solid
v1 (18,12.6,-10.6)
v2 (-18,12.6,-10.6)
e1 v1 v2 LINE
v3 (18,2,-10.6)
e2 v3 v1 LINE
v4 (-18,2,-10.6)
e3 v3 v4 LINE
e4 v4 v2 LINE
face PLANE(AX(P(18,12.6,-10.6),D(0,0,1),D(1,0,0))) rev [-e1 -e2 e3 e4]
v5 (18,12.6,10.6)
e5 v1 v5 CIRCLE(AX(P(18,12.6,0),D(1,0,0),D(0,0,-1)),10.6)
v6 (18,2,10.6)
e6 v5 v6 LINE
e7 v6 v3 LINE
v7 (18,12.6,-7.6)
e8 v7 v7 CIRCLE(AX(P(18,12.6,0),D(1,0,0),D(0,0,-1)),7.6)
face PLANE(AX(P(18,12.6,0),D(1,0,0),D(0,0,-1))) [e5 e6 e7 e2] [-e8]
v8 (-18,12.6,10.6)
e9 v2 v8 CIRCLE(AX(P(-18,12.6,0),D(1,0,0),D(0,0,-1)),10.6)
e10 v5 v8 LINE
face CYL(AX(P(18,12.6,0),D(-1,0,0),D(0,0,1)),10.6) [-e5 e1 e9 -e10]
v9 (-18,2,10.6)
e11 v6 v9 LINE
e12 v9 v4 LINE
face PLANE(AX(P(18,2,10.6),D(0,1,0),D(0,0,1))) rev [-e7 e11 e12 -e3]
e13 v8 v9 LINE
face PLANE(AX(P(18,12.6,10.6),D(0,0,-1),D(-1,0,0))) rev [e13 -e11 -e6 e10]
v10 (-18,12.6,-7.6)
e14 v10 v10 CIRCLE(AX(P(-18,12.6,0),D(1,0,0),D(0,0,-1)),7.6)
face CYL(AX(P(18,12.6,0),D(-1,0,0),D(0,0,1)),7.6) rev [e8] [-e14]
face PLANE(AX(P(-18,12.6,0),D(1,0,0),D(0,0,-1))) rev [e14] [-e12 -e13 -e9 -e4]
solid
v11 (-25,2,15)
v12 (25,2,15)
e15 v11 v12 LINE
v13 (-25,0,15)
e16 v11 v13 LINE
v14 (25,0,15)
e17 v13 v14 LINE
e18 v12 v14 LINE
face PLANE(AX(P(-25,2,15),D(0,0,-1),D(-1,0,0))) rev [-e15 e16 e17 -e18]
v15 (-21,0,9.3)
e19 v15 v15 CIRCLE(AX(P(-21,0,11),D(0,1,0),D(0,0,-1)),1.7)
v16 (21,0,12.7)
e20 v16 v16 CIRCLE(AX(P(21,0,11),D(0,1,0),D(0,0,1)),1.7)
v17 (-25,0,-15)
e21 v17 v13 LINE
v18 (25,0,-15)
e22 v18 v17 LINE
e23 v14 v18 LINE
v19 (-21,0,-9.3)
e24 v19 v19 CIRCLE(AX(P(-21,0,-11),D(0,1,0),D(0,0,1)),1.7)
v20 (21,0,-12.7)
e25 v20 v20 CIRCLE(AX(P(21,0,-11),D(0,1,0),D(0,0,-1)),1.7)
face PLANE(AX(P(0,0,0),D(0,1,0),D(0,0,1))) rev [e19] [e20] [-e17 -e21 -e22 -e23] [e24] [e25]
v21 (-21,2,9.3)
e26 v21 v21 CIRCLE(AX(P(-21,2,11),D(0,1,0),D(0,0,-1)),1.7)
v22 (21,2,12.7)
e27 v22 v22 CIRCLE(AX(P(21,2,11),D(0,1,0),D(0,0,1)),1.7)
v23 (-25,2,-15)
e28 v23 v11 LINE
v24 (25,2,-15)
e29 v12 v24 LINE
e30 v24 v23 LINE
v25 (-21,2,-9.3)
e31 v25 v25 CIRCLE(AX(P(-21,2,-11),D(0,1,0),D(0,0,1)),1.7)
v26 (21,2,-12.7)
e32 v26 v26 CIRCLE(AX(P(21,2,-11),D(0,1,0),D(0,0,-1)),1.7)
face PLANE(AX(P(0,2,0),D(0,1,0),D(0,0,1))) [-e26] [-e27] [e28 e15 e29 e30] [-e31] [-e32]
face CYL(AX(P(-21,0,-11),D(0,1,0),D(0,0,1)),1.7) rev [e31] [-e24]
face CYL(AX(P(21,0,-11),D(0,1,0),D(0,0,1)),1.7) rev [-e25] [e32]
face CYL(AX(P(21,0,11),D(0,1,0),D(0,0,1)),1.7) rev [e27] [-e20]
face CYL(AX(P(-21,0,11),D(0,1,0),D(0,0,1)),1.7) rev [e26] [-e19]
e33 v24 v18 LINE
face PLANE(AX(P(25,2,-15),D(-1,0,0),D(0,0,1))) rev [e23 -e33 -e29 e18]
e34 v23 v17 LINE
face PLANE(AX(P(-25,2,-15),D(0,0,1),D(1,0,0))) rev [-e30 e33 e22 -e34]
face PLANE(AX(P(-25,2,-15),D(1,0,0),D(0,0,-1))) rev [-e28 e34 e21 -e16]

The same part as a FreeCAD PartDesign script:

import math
import FreeCAD as App
import Part
import Sketcher
from FreeCAD import Vector
Q = App.Units.Quantity

doc = App.newDocument("Part")
params = doc.addObject("Spreadsheet::Sheet", "Params")
for row, (alias, value) in enumerate([
    ("sketch1_width", "50 mm"),
    ("sketch1_height", "30 mm"),
    ("pad1_length", "2 mm"),
    ("sketch2_diameter", "3.4 mm"),
    ("sketch3_diameter", "15.2 mm"),
    ("sketch3_radius", "10.6 mm"),
    ("sketch3_width", "10.6 mm"),
    ("pad2_length", "36 mm"),
], start=1):
    params.set(f"A{row}", alias)
    params.set(f"B{row}", "=" + value)
    params.setAlias(f"B{row}", alias)

body = doc.addObject("PartDesign::Body", "Body")

# Sketch on XZ plane
sketch1 = body.newObject("Sketcher::SketchObject", "Sketch")
sketch1.AttachmentSupport = (doc.getObject("XZ_Plane"), [""])
sketch1.MapMode = "FlatFace"
sketch1.addGeometry([
    Part.LineSegment(Vector(-25, -15, 0), Vector(-25, 15, 0)),
    Part.LineSegment(Vector(-25, 15, 0), Vector(25, 15, 0)),
    Part.LineSegment(Vector(25, 15, 0), Vector(25, -15, 0)),
    Part.LineSegment(Vector(25, -15, 0), Vector(-25, -15, 0)),
], False)
sketch1.addConstraint([
    Sketcher.Constraint("Coincident", 0, 2, 1, 1),
    Sketcher.Constraint("Coincident", 1, 2, 2, 1),
    Sketcher.Constraint("Coincident", 2, 2, 3, 1),
    Sketcher.Constraint("Coincident", 3, 2, 0, 1),
    Sketcher.Constraint("Vertical", 0),
    Sketcher.Constraint("Horizontal", 1),
    Sketcher.Constraint("Vertical", 2),
    Sketcher.Constraint("Horizontal", 3),
    Sketcher.Constraint("Symmetric", 0, 2, 2, 2, -1, 1),
    Sketcher.Constraint("DistanceX", 1, 1, 1, 2, Q("50 mm")),
    Sketcher.Constraint("DistanceY", 0, 1, 0, 2, Q("30 mm")),
])
sketch1.setExpression("Constraints[9]", "Params.sketch1_width")
sketch1.setExpression("Constraints[10]", "Params.sketch1_height")
pad1 = body.newObject("PartDesign::Pad", "Pad")
pad1.Profile = sketch1
pad1.setExpression("Length", "Params.pad1_length")
pad1.Reversed = True

# Sketch on XZ plane
sketch2 = body.newObject("Sketcher::SketchObject", "Sketch001")
sketch2.AttachmentSupport = (doc.getObject("XZ_Plane"), [""])
sketch2.MapMode = "FlatFace"
sketch2.AttachmentOffset = App.Placement(Vector(0, 0, -2), App.Rotation())
sketch2.addGeometry([
    Part.Circle(Vector(-21, -11, 0), Vector(0, 0, 1), 1.7),
    Part.Circle(Vector(21, -11, 0), Vector(0, 0, 1), 1.7),
    Part.Circle(Vector(-21, 11, 0), Vector(0, 0, 1), 1.7),
    Part.Circle(Vector(21, 11, 0), Vector(0, 0, 1), 1.7),
], False)
sketch2.addConstraint([
    Sketcher.Constraint("Equal", 0, 1),
    Sketcher.Constraint("Equal", 1, 2),
    Sketcher.Constraint("Equal", 2, 3),
    Sketcher.Constraint("Symmetric", 1, 3, 2, 3, -1, 1),
    Sketcher.Constraint("Symmetric", 0, 3, 3, 3, -1, 1),
    Sketcher.Constraint("Symmetric", 0, 3, 1, 3, -2),
    Sketcher.Constraint("Diameter", 0, Q("3.4 mm")),
    Sketcher.Constraint("DistanceX", 0, 3, -1, 1, Q("21 mm")),
    Sketcher.Constraint("DistanceY", 0, 3, -1, 1, Q("11 mm")),
])
sketch2.setExpression("Constraints[6]", "Params.sketch2_diameter")
pocket1 = body.newObject("PartDesign::Pocket", "Pocket")
pocket1.Profile = sketch2
pocket1.Type = "ThroughAll"
pocket1.Reversed = True
body2 = doc.addObject("PartDesign::Body", "Body001")

# Sketch on YZ plane
sketch3 = body2.newObject("Sketcher::SketchObject", "Sketch002")
sketch3.AttachmentSupport = (doc.getObject("YZ_Plane001"), [""])
sketch3.MapMode = "FlatFace"
sketch3.addGeometry([
    Part.LineSegment(Vector(12.6, 10.6, 0), Vector(2, 10.6, 0)),  # 0
    Part.LineSegment(Vector(2, 10.6, 0), Vector(2, -10.6, 0)),  # 1
    Part.LineSegment(Vector(2, -10.6, 0), Vector(12.6, -10.6, 0)),  # 2
    Part.ArcOfCircle(Part.Circle(Vector(12.6, 0, 0), Vector(0, 0, 1), 10.6), math.radians(-90), math.radians(90)),  # 3
    Part.Circle(Vector(12.6, 0, 0), Vector(0, 0, 1), 7.6),  # 4
], False)
sketch3.addConstraint([
    Sketcher.Constraint("Coincident", 0, 2, 1, 1),
    Sketcher.Constraint("Coincident", 1, 2, 2, 1),
    Sketcher.Constraint("Tangent", 2, 2, 3, 1),
    Sketcher.Constraint("Tangent", 3, 2, 0, 1),
    Sketcher.Constraint("Horizontal", 0),
    Sketcher.Constraint("Vertical", 1),
    Sketcher.Constraint("Horizontal", 2),
    Sketcher.Constraint("Coincident", 4, 3, 3, 3),
    Sketcher.Constraint("PointOnObject", 3, 3, -1),
    Sketcher.Constraint("Diameter", 4, Q("15.2 mm")),
    Sketcher.Constraint("Radius", 3, Q("10.6 mm")),
    Sketcher.Constraint("DistanceX", 0, 2, 0, 1, Q("10.6 mm")),
    Sketcher.Constraint("DistanceX", -1, 1, 0, 2, Q("2 mm")),
])
sketch3.setExpression("Constraints[9]", "Params.sketch3_diameter")
sketch3.setExpression("Constraints[10]", "Params.sketch3_radius")
sketch3.setExpression("Constraints[11]", "Params.sketch3_width")
pad2 = body2.newObject("PartDesign::Pad", "Pad001")
pad2.Profile = sketch3
pad2.setExpression("Length", "Params.pad2_length")
pad2.Midplane = True

doc.recompute()
